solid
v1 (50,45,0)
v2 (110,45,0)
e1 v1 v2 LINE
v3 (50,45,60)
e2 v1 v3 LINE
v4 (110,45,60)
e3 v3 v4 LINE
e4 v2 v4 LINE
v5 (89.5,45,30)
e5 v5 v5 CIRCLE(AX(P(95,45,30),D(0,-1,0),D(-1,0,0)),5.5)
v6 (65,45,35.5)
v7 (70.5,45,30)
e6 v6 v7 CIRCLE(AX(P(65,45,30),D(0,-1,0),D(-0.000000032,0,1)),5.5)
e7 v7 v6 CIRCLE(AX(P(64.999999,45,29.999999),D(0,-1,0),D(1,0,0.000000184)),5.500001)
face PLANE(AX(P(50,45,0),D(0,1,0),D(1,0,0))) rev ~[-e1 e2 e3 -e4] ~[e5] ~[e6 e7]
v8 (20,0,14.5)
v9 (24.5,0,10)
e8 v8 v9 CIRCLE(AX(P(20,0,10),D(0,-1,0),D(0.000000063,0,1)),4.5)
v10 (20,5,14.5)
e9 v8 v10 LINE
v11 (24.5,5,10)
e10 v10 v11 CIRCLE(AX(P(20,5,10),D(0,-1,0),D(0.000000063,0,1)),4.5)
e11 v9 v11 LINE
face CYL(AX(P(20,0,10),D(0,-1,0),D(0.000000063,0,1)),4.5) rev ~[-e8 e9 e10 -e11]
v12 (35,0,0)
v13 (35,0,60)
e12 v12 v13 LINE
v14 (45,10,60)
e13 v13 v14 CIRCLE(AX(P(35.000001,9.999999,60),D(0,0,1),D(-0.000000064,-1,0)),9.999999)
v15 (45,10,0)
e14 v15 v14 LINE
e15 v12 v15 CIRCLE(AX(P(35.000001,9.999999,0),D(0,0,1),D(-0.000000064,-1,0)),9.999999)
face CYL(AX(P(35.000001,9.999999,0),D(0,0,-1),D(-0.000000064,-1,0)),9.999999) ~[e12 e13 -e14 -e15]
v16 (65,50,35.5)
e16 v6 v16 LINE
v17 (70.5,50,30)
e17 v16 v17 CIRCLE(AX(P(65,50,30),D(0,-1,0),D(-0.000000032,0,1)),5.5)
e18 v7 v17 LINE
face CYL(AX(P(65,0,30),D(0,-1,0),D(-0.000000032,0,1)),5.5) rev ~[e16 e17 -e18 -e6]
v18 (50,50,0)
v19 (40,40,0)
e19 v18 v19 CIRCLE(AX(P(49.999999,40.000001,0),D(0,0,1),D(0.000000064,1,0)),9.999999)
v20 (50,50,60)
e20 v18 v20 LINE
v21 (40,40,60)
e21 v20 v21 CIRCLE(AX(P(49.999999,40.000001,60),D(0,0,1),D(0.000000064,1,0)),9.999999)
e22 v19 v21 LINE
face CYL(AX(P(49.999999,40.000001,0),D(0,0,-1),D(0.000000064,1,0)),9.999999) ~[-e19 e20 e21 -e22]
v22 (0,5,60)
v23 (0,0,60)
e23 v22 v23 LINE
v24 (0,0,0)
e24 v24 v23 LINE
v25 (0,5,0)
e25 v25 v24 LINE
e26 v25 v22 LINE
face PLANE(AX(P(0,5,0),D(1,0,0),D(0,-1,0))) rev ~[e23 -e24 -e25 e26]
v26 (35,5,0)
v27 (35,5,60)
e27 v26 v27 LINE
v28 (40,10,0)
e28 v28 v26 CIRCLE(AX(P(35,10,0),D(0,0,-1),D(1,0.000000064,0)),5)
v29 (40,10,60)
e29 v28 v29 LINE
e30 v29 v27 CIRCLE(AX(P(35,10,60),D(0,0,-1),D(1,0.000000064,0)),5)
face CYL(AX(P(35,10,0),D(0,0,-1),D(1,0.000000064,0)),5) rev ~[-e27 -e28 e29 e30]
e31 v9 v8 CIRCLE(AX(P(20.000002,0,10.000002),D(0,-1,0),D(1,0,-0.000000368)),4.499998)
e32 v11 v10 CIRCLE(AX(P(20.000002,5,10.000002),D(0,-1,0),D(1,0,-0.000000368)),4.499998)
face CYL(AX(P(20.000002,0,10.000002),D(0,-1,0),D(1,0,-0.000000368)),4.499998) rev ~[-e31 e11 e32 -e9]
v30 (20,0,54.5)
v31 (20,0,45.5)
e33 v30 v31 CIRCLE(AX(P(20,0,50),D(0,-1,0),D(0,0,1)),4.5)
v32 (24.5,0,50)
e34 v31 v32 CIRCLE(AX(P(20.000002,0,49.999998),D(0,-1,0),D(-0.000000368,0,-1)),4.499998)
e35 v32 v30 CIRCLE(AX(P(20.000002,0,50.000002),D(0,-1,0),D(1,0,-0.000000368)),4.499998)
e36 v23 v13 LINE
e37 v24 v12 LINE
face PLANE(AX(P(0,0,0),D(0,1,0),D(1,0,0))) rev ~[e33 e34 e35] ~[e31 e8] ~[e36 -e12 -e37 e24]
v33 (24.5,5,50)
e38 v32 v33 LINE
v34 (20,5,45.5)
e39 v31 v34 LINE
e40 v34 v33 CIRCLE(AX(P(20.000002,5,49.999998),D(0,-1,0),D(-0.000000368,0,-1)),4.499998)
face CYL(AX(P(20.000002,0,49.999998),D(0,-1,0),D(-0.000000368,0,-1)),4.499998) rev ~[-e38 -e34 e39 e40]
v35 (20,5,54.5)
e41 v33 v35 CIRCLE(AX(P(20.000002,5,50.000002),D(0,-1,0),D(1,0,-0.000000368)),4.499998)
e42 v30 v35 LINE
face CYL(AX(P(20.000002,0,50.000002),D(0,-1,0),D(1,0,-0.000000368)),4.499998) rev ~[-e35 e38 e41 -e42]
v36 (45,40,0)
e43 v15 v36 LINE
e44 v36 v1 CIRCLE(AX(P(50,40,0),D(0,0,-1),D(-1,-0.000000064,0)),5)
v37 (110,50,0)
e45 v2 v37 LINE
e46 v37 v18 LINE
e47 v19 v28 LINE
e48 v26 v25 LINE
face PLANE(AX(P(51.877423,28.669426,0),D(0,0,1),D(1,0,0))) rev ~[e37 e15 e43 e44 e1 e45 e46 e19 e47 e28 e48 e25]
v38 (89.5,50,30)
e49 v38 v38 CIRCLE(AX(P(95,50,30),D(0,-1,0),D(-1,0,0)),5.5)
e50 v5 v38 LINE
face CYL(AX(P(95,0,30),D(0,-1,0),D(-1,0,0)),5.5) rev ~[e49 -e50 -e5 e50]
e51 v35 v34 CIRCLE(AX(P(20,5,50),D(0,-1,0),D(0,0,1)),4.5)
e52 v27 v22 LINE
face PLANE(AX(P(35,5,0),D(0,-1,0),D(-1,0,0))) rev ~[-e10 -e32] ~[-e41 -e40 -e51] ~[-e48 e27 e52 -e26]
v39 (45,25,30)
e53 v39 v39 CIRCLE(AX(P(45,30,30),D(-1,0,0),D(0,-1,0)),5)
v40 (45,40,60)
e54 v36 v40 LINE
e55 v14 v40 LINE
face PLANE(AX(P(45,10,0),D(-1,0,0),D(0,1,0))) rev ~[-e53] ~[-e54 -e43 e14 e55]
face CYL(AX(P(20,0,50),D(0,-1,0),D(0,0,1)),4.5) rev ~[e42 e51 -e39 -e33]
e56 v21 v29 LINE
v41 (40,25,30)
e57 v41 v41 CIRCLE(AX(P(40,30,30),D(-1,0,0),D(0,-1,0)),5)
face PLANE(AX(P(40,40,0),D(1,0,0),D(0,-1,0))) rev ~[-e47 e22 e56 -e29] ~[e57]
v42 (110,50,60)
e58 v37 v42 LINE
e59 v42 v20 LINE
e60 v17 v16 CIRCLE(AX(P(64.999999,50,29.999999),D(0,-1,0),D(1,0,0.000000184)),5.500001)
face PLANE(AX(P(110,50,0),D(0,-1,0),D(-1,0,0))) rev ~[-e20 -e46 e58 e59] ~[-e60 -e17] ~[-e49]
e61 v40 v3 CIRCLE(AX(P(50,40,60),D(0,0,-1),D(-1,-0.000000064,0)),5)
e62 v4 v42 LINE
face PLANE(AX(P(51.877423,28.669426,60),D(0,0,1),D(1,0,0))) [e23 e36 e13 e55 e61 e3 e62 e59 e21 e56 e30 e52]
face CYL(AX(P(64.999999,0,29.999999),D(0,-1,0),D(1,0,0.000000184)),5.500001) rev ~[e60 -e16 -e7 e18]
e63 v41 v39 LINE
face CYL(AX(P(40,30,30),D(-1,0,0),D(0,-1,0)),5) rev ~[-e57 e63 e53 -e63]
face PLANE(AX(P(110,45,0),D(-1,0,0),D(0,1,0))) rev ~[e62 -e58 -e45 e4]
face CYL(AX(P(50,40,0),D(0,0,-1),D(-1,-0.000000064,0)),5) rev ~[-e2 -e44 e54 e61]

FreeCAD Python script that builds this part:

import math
import FreeCAD as App
import Part
import Sketcher
Q = App.Units.Quantity

doc = App.newDocument("Part")
body = doc.addObject("PartDesign::Body", "Body")

sketch1 = body.newObject("Sketcher::SketchObject", "Sketch")
sketch1.AttachmentSupport = (doc.getObject("XY_Plane"), [""])
sketch1.MapMode = "FlatFace"
sketch1.addGeometry(Part.LineSegment(App.Vector(0, 5, 0), App.Vector(0, 0, 0)), False)
sketch1.addGeometry(Part.LineSegment(App.Vector(0, 0, 0), App.Vector(35, 0, 0)), False)
sketch1.addGeometry(Part.ArcOfCircle(Part.Circle(App.Vector(35, 10, 0), App.Vector(0, 0, 1), 10), math.radians(-90), math.radians(0)), False)
sketch1.addGeometry(Part.LineSegment(App.Vector(45, 10, 0), App.Vector(45, 40, 0)), False)
sketch1.addGeometry(Part.ArcOfCircle(Part.Circle(App.Vector(50, 40, 0), App.Vector(0, 0, 1), 5), math.radians(90), math.radians(180)), False)
sketch1.addGeometry(Part.LineSegment(App.Vector(50, 45, 0), App.Vector(110, 45, 0)), False)
sketch1.addGeometry(Part.LineSegment(App.Vector(110, 45, 0), App.Vector(110, 50, 0)), False)
sketch1.addGeometry(Part.LineSegment(App.Vector(110, 50, 0), App.Vector(50, 50, 0)), False)
sketch1.addGeometry(Part.ArcOfCircle(Part.Circle(App.Vector(50, 40, 0), App.Vector(0, 0, 1), 10), math.radians(90), math.radians(180)), False)
sketch1.addGeometry(Part.LineSegment(App.Vector(40, 40, 0), App.Vector(40, 10, 0)), False)
sketch1.addGeometry(Part.ArcOfCircle(Part.Circle(App.Vector(35, 10, 0), App.Vector(0, 0, 1), 5), math.radians(-90), math.radians(0)), False)
sketch1.addGeometry(Part.LineSegment(App.Vector(35, 5, 0), App.Vector(0, 5, 0)), False)
sketch1.addConstraint(Sketcher.Constraint("Coincident", 0, 2, 1, 1))
sketch1.addConstraint(Sketcher.Constraint("Tangent", 1, 2, 2, 1))
sketch1.addConstraint(Sketcher.Constraint("Tangent", 2, 2, 3, 1))
sketch1.addConstraint(Sketcher.Constraint("Tangent", 3, 2, 4, 2))
sketch1.addConstraint(Sketcher.Constraint("Tangent", 4, 1, 5, 1))
sketch1.addConstraint(Sketcher.Constraint("Coincident", 5, 2, 6, 1))
sketch1.addConstraint(Sketcher.Constraint("Coincident", 6, 2, 7, 1))
sketch1.addConstraint(Sketcher.Constraint("Tangent", 7, 2, 8, 1))
sketch1.addConstraint(Sketcher.Constraint("Tangent", 8, 2, 9, 1))
sketch1.addConstraint(Sketcher.Constraint("Tangent", 9, 2, 10, 2))
sketch1.addConstraint(Sketcher.Constraint("Tangent", 10, 1, 11, 1))
sketch1.addConstraint(Sketcher.Constraint("Coincident", 11, 2, 0, 1))
sketch1.addConstraint(Sketcher.Constraint("Vertical", 0))
sketch1.addConstraint(Sketcher.Constraint("Horizontal", 1))
sketch1.addConstraint(Sketcher.Constraint("Vertical", 3))
sketch1.addConstraint(Sketcher.Constraint("Horizontal", 5))
sketch1.addConstraint(Sketcher.Constraint("Vertical", 6))
sketch1.addConstraint(Sketcher.Constraint("Horizontal", 7))
sketch1.addConstraint(Sketcher.Constraint("Vertical", 9))
sketch1.addConstraint(Sketcher.Constraint("Horizontal", 11))
sketch1.addConstraint(Sketcher.Constraint("Coincident", 0, 2, -1, 1))
sketch1.addConstraint(Sketcher.Constraint("Coincident", 8, 3, 4, 3))
sketch1.addConstraint(Sketcher.Constraint("Coincident", 10, 3, 2, 3))
sketch1.addConstraint(Sketcher.Constraint("Equal", 2, 8))
sketch1.addConstraint(Sketcher.Constraint("Radius", 2, Q("9.999999 mm")))
sketch1.addConstraint(Sketcher.Constraint("Radius", 4, Q("5 mm")))
sketch1.addConstraint(Sketcher.Constraint("DistanceX", 1, 1, 1, 2, Q("35 mm")))
sketch1.addConstraint(Sketcher.Constraint("DistanceX", 5, 1, 5, 2, Q("60 mm")))
sketch1.addConstraint(Sketcher.Constraint("DistanceY", 3, 1, 3, 2, Q("30 mm")))
pad1 = body.newObject("PartDesign::Pad", "Pad")
pad1.Profile = sketch1
pad1.Length = 60

sketch2 = body.newObject("Sketcher::SketchObject", "Sketch001")
sketch2.AttachmentSupport = (doc.getObject("XZ_Plane"), [""])
sketch2.MapMode = "FlatFace"
sketch2.addGeometry(Part.ArcOfCircle(Part.Circle(App.Vector(20, 10, 0), App.Vector(0, 0, 1), 4.5), math.radians(0), math.radians(90)), False)
sketch2.addGeometry(Part.ArcOfCircle(Part.Circle(App.Vector(20, 10, 0), App.Vector(0, 0, 1), 4.5), math.radians(90), math.radians(360)), False)
sketch2.addGeometry(Part.ArcOfCircle(Part.Circle(App.Vector(20, 50, 0), App.Vector(0, 0, 1), 4.5), math.radians(0), math.radians(90)), False)
sketch2.addGeometry(Part.ArcOfCircle(Part.Circle(App.Vector(20, 50, 0), App.Vector(0, 0, 1), 4.5), math.radians(90), math.radians(270)), False)
sketch2.addGeometry(Part.ArcOfCircle(Part.Circle(App.Vector(20, 50, 0), App.Vector(0, 0, 1), 4.5), math.radians(-90), math.radians(0)), False)
sketch2.addGeometry(Part.Circle(App.Vector(95, 30, 0), App.Vector(0, 0, 1), 5.5), False)
sketch2.addGeometry(Part.ArcOfCircle(Part.Circle(App.Vector(65, 30, 0), App.Vector(0, 0, 1), 5.5), math.radians(0), math.radians(90)), False)
sketch2.addGeometry(Part.ArcOfCircle(Part.Circle(App.Vector(65, 30, 0), App.Vector(0, 0, 1), 5.5), math.radians(90), math.radians(360)), False)
sketch2.addConstraint(Sketcher.Constraint("Tangent", 0, 1, 1, 2))
sketch2.addConstraint(Sketcher.Constraint("Coincident", 1, 1, 0, 2))
sketch2.addConstraint(Sketcher.Constraint("Tangent", 2, 2, 3, 1))
sketch2.addConstraint(Sketcher.Constraint("Tangent", 3, 2, 4, 1))
sketch2.addConstraint(Sketcher.Constraint("Tangent", 4, 2, 2, 1))
sketch2.addConstraint(Sketcher.Constraint("Tangent", 6, 1, 7, 2))
sketch2.addConstraint(Sketcher.Constraint("Coincident", 7, 1, 6, 2))
sketch2.addConstraint(Sketcher.Constraint("Equal", 1, 2))
sketch2.addConstraint(Sketcher.Constraint("Equal", 5, 6))
sketch2.addConstraint(Sketcher.Constraint("Horizontal", 5, 3, 6, 3))
sketch2.addConstraint(Sketcher.Constraint("Horizontal", 1, 3, 0, 1))
sketch2.addConstraint(Sketcher.Constraint("Horizontal", 3, 3, 4, 2))
sketch2.addConstraint(Sketcher.Constraint("Horizontal", 7, 3, 6, 1))
sketch2.addConstraint(Sketcher.Constraint("Vertical", 1, 3, 2, 3))
sketch2.addConstraint(Sketcher.Constraint("Vertical", 4, 3, 1, 1))
sketch2.addConstraint(Sketcher.Constraint("Vertical", 1, 1, 2, 2))
sketch2.addConstraint(Sketcher.Constraint("Vertical", 2, 2, 3, 2))
sketch2.addConstraint(Sketcher.Constraint("Vertical", 6, 3, 7, 1))
sketch2.addConstraint(Sketcher.Constraint("Diameter", 5, Q("11 mm")))
sketch2.addConstraint(Sketcher.Constraint("Radius", 0, Q("4.499998 mm")))
sketch2.addConstraint(Sketcher.Constraint("DistanceX", -1, 1, 0, 3, Q("20.000002 mm")))
sketch2.addConstraint(Sketcher.Constraint("DistanceY", -1, 1, 0, 3, Q("10.000002 mm")))
sketch2.addConstraint(Sketcher.Constraint("DistanceY", -1, 1, 2, 3, Q("50.000002 mm")))
sketch2.addConstraint(Sketcher.Constraint("DistanceX", -1, 1, 5, 3, Q("95 mm")))
sketch2.addConstraint(Sketcher.Constraint("DistanceY", -1, 1, 5, 3, Q("30 mm")))
sketch2.addConstraint(Sketcher.Constraint("DistanceX", -1, 1, 6, 3, Q("64.999999 mm")))
pocket1 = body.newObject("PartDesign::Pocket", "Pocket")
pocket1.Profile = sketch2
pocket1.Length = 106.9

sketch3 = body.newObject("Sketcher::SketchObject", "Sketch002")
sketch3.AttachmentSupport = (doc.getObject("YZ_Plane"), [""])
sketch3.MapMode = "FlatFace"
sketch3.AttachmentOffset = App.Placement(App.Vector(0, 0, 40), App.Rotation())
sketch3.addGeometry(Part.Circle(App.Vector(30, 30, 0), App.Vector(0, 0, 1), 5), False)
sketch3.addConstraint(Sketcher.Constraint("Diameter", 0, Q("10 mm")))
sketch3.addConstraint(Sketcher.Constraint("DistanceX", -1, 1, 0, 3, Q("30 mm")))
sketch3.addConstraint(Sketcher.Constraint("DistanceY", -1, 1, 0, 3, Q("30 mm")))
pocket2 = body.newObject("PartDesign::Pocket", "Pocket001")
pocket2.Profile = sketch3
pocket2.Length = 25
pocket2.Reversed = True

doc.recompute()
